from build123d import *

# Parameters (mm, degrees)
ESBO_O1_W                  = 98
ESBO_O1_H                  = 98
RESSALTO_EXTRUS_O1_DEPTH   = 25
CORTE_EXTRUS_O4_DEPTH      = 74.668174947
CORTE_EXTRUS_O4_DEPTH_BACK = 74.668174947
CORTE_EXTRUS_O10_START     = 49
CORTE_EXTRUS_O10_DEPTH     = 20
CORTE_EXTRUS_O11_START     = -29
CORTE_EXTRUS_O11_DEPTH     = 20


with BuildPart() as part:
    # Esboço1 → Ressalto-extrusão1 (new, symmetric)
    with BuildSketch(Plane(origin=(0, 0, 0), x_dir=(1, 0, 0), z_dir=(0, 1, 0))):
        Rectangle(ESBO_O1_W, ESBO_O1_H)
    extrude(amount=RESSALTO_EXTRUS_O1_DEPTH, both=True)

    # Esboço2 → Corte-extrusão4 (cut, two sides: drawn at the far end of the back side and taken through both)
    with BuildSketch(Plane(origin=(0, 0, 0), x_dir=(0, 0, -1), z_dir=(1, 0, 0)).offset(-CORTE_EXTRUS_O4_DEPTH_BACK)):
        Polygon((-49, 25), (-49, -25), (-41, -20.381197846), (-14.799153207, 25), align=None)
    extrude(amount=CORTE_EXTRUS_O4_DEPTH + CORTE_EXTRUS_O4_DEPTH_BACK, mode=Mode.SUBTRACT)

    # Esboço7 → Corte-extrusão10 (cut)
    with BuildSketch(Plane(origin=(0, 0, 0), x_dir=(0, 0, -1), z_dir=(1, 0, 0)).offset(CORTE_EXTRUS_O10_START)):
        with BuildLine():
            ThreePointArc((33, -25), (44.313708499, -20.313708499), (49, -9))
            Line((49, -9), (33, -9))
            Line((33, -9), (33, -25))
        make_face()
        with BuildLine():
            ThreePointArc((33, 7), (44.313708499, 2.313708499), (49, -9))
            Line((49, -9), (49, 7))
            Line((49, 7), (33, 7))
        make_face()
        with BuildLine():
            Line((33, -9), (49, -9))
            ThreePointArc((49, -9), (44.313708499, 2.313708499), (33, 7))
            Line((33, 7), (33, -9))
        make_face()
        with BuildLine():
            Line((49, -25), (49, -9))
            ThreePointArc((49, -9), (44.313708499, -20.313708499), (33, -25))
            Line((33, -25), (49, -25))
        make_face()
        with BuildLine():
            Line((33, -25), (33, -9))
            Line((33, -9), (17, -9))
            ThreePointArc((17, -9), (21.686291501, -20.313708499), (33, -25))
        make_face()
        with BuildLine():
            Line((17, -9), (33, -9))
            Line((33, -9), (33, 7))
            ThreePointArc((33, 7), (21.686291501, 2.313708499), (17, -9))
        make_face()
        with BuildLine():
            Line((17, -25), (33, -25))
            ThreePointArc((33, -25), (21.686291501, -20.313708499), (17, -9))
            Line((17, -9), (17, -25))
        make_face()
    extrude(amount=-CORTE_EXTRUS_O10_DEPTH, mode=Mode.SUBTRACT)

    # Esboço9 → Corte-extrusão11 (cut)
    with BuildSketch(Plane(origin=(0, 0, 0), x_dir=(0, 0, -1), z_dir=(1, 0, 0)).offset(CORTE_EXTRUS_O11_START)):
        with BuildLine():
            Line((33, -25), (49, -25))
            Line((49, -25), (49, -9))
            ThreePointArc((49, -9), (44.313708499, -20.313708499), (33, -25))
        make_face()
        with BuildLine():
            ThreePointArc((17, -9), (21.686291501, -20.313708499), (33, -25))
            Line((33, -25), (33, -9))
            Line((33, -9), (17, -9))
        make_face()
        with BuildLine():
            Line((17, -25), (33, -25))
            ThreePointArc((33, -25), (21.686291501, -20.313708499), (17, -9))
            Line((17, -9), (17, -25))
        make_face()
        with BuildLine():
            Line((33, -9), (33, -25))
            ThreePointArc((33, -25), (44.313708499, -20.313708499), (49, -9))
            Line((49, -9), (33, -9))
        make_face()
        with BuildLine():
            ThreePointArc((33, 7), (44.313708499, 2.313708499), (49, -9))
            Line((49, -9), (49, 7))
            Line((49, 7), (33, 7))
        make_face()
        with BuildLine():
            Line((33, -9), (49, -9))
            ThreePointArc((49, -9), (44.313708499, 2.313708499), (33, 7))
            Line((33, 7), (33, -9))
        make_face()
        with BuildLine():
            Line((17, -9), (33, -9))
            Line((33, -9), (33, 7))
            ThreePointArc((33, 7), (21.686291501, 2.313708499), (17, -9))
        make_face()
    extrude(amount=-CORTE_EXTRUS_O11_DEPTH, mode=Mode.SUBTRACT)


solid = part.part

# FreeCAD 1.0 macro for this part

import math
import FreeCAD as App
import Part
import Sketcher
from FreeCAD import Vector
Q = App.Units.Quantity


def add_polygon(sketch, points):
    """Adds a closed chain of lines whose ends are joined by coincident constraints."""
    first, n = sketch.GeometryCount, len(points)
    for a, b in zip(points, points[1:] + points[:1]):
        sketch.addGeometry(Part.LineSegment(App.Vector(*a, 0), App.Vector(*b, 0)), False)
    for i in range(n):
        sketch.addConstraint(Sketcher.Constraint("Coincident", first + i, 2, first + (i + 1) % n, 1))

doc = App.newDocument("Part")
params = doc.addObject("Spreadsheet::Sheet", "Params")
for row, (alias, value) in enumerate([
    ("sketch1_width", "98 mm"),
    ("pad1_length", "50 mm"),
    ("sketch2_width", "50 mm"),
    ("sketch3_radius", "16 mm"),
    ("sketch3_width", "16 mm"),
    ("pocket2_length", "20 mm"),
    ("sketch4_radius", "16 mm"),
    ("sketch4_width", "32 mm"),
    ("pocket3_length", "20 mm"),
], start=1):
    params.set(f"A{row}", alias)
    params.set(f"B{row}", "=" + value)
    params.setAlias(f"B{row}", alias)

body = doc.addObject("PartDesign::Body", "Body")

sketch1 = body.newObject("Sketcher::SketchObject", "Sketch")
sketch1.AttachmentSupport = (doc.getObject("XZ_Plane"), [""])
sketch1.MapMode = "FlatFace"
add_polygon(sketch1, [(-49, -49), (-49, 49), (49, 49), (49, -49)])
sketch1.addConstraint([
    Sketcher.Constraint("Vertical", 0),
    Sketcher.Constraint("Horizontal", 1),
    Sketcher.Constraint("Vertical", 2),
    Sketcher.Constraint("Horizontal", 3),
    Sketcher.Constraint("Symmetric", 0, 2, 2, 2, -1, 1),
    Sketcher.Constraint("Equal", 3, 0),
    Sketcher.Constraint("DistanceX", 1, 1, 1, 2, 98.0),
])
sketch1.setExpression("Constraints[10]", "Params.sketch1_width")
pad1 = body.newObject("PartDesign::Pad", "Pad")
pad1.Profile = sketch1
pad1.setExpression("Length", "Params.pad1_length")
pad1.Midplane = True

sketch2 = body.newObject("Sketcher::SketchObject", "Sketch001")
sketch2.AttachmentSupport = (doc.getObject("YZ_Plane"), [""])
sketch2.MapMode = "FlatFace"
add_polygon(sketch2, [(25, 49), (-25, 49), (-20.381198, 41), (25, 14.799153)])
sketch2.addConstraint([
    Sketcher.Constraint("Horizontal", 0),
    Sketcher.Constraint("Vertical", 3),
    Sketcher.Constraint("DistanceX", 0, 2, 0, 1, 50.0),
    Sketcher.Constraint("Angle", 1, Q("-60 deg")),
    Sketcher.Constraint("Angle", 2, Q("-30 deg")),
    Sketcher.Constraint("DistanceX", 0, 2, -1, 1, 25.0),
    Sketcher.Constraint("DistanceY", -1, 1, 0, 2, 49.0),
    Sketcher.Constraint("DistanceY", -1, 1, 1, 2, 41.0),
])
sketch2.setExpression("Constraints[6]", "Params.sketch2_width")
pocket1 = body.newObject("PartDesign::Pocket", "Pocket")
pocket1.Profile = sketch2
pocket1.Type = "ThroughAll"
pocket1.Midplane = True

sketch3 = body.newObject("Sketcher::SketchObject", "Sketch002")
sketch3.AttachmentSupport = (doc.getObject("YZ_Plane"), [""])
sketch3.MapMode = "FlatFace"
sketch3.AttachmentOffset = App.Placement(Vector(0, 0, 49), App.Rotation())
sketch3.addGeometry([
    Part.LineSegment(Vector(7, -49, 0), Vector(7, -33, 0)),
    Part.ArcOfCircle(Part.Circle(Vector(-9, -33, 0), Vector(0, 0, 1), 16), math.radians(0), math.radians(90)),
    Part.LineSegment(Vector(-9, -17, 0), Vector(-25, -17, 0)),
    Part.LineSegment(Vector(-25, -17, 0), Vector(-25, -49, 0)),
    Part.LineSegment(Vector(-25, -49, 0), Vector(7, -49, 0)),
], False)
sketch3.addConstraint([
    Sketcher.Constraint("Tangent", 0, 2, 1, 1),
    Sketcher.Constraint("Tangent", 1, 2, 2, 1),
    Sketcher.Constraint("Coincident", 2, 2, 3, 1),
    Sketcher.Constraint("Coincident", 3, 2, 4, 1),
    Sketcher.Constraint("Coincident", 4, 2, 0, 1),
    Sketcher.Constraint("Vertical", 0),
    Sketcher.Constraint("Horizontal", 2),
    Sketcher.Constraint("Vertical", 3),
    Sketcher.Constraint("Horizontal", 4),
    Sketcher.Constraint("Equal", 2, 0),
    Sketcher.Constraint("Radius", 1, 16.0),
    Sketcher.Constraint("DistanceX", 2, 2, 2, 1, 16.0),
    Sketcher.Constraint("DistanceX", 1, 3, -1, 1, 9.0),
    Sketcher.Constraint("DistanceY", 1, 3, -1, 1, 33.0),
])
sketch3.setExpression("Constraints[10]", "Params.sketch3_radius")
sketch3.setExpression("Constraints[11]", "Params.sketch3_width")
pocket2 = body.newObject("PartDesign::Pocket", "Pocket001")
pocket2.Profile = sketch3
pocket2.setExpression("Length", "Params.pocket2_length")

sketch4 = body.newObject("Sketcher::SketchObject", "Sketch003")
sketch4.AttachmentSupport = (doc.getObject("YZ_Plane"), [""])
sketch4.MapMode = "FlatFace"
sketch4.AttachmentOffset = App.Placement(Vector(0, 0, -29), App.Rotation())
sketch4.addGeometry([
    Part.LineSegment(Vector(-25, -49, 0), Vector(7, -49, 0)),
    Part.LineSegment(Vector(7, -49, 0), Vector(7, -33, 0)),
    Part.ArcOfCircle(Part.Circle(Vector(-9, -33, 0), Vector(0, 0, 1), 16), math.radians(0), math.radians(90)),
    Part.LineSegment(Vector(-9, -17, 0), Vector(-25, -17, 0)),
    Part.LineSegment(Vector(-25, -17, 0), Vector(-25, -49, 0)),
], False)
sketch4.addConstraint([
    Sketcher.Constraint("Coincident", 0, 2, 1, 1),
    Sketcher.Constraint("Tangent", 1, 2, 2, 1),
    Sketcher.Constraint("Tangent", 2, 2, 3, 1),
    Sketcher.Constraint("Coincident", 3, 2, 4, 1),
    Sketcher.Constraint("Coincident", 4, 2, 0, 1),
    Sketcher.Constraint("Horizontal", 0),
    Sketcher.Constraint("Vertical", 1),
    Sketcher.Constraint("Horizontal", 3),
    Sketcher.Constraint("Vertical", 4),
    Sketcher.Constraint("Equal", 3, 1),
    Sketcher.Constraint("Radius", 2, 16.0),
    Sketcher.Constraint("DistanceX", 0, 1, 0, 2, 32.0),
    Sketcher.Constraint("DistanceX", 2, 3, -1, 1, 9.0),
    Sketcher.Constraint("DistanceY", 2, 3, -1, 1, 33.0),
])
sketch4.setExpression("Constraints[10]", "Params.sketch4_radius")
sketch4.setExpression("Constraints[11]", "Params.sketch4_width")
pocket3 = body.newObject("PartDesign::Pocket", "Pocket002")
pocket3.Profile = sketch4
pocket3.setExpression("Length", "Params.pocket3_length")

doc.recompute()
